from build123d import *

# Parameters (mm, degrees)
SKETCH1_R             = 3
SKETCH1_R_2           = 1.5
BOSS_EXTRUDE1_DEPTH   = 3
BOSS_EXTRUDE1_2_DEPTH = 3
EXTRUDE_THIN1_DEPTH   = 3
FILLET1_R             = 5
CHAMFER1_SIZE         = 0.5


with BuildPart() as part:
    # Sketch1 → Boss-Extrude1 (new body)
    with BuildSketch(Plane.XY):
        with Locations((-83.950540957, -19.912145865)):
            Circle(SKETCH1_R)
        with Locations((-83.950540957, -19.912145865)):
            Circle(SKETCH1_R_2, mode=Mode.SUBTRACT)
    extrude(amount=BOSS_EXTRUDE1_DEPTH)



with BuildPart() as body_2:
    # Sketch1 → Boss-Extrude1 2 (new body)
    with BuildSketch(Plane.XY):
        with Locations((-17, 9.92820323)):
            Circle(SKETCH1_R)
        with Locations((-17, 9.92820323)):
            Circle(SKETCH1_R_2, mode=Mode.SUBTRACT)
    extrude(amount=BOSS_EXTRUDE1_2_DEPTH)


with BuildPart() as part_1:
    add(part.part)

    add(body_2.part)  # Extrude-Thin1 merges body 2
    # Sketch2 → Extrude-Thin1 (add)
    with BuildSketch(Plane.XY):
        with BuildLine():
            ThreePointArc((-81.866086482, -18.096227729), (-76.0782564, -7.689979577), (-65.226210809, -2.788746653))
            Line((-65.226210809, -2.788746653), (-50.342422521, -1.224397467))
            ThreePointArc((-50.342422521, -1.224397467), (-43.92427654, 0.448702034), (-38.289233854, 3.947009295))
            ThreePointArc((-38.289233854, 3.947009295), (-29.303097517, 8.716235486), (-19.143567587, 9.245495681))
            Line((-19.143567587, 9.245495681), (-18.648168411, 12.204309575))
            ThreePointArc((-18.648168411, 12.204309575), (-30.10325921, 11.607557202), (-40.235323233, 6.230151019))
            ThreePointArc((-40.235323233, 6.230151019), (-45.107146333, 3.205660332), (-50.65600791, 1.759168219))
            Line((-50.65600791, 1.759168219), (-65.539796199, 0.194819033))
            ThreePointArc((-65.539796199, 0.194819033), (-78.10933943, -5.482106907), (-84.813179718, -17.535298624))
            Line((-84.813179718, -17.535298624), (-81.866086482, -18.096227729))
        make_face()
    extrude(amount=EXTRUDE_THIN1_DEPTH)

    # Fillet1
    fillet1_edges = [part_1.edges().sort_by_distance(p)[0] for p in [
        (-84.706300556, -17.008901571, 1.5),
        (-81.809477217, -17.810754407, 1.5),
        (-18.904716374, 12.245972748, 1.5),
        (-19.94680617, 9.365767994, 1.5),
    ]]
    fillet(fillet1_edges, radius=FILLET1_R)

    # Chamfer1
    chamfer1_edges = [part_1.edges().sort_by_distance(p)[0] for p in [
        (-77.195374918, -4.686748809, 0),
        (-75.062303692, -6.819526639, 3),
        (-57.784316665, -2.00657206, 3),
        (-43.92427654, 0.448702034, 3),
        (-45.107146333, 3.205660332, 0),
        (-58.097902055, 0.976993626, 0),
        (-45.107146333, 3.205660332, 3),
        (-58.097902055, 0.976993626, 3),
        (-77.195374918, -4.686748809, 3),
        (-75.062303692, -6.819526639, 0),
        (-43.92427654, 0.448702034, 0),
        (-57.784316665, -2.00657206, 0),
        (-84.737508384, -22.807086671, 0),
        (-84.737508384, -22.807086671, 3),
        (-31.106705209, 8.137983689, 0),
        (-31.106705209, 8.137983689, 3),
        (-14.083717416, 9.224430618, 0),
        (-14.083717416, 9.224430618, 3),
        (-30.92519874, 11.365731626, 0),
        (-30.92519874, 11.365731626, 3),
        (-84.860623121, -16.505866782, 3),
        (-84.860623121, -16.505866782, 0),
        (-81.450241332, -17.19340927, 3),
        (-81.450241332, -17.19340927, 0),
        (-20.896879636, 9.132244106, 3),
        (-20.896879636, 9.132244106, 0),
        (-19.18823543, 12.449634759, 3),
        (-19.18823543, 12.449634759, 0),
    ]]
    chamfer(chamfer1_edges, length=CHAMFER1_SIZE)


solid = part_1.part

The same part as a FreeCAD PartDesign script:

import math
import FreeCAD as App
import Part
import Sketcher

V = App.Vector
Q = App.Units.Quantity


def edges_at(feature, points):
    """Names of the edges that pass closest to the given points."""
    edges = feature.Shape.Edges
    near = lambda p: min(range(len(edges)), key=lambda i: edges[i].distToShape(Part.Vertex(*p))[0])
    return sorted({f"Edge{near(p) + 1}" for p in points})

doc = App.newDocument("Part")
body = doc.addObject("PartDesign::Body", "Body")

# Sketch on XY plane
sketch1 = body.newObject("Sketcher::SketchObject", "Sketch")
sketch1.AttachmentSupport = (doc.getObject("XY_Plane"), [""])
sketch1.MapMode = "FlatFace"
sketch1.addGeometry([
    Part.Circle(V(-84, -19.9, 0), V(0, 0, 1), 3),
    Part.Circle(V(-84, -19.9, 0), V(0, 0, 1), 1.5),
], False)
sketch1.addConstraint([
    Sketcher.Constraint("Coincident", 1, 3, 0, 3),
    Sketcher.Constraint("Diameter", 0, Q("6 mm")),
    Sketcher.Constraint("Diameter", 1, Q("3 mm")),
    Sketcher.Constraint("DistanceX", 0, 3, -1, 1, Q("83.950541 mm")),
    Sketcher.Constraint("DistanceY", 0, 3, -1, 1, Q("19.912146 mm")),
])
pad1 = body.newObject("PartDesign::Pad", "Pad")
pad1.Profile = sketch1
pad1.Length = 3
body2 = doc.addObject("PartDesign::Body", "Body001")

# Sketch on XY plane
sketch2 = body2.newObject("Sketcher::SketchObject", "Sketch001")
sketch2.AttachmentSupport = (doc.getObject("XY_Plane001"), [""])
sketch2.MapMode = "FlatFace"
sketch2.addGeometry([
    Part.Circle(V(-17, 9.9, 0), V(0, 0, 1), 3),
    Part.Circle(V(-17, 9.9, 0), V(0, 0, 1), 1.5),
], False)
sketch2.addConstraint([
    Sketcher.Constraint("Coincident", 1, 3, 0, 3),
    Sketcher.Constraint("Diameter", 0, Q("6 mm")),
    Sketcher.Constraint("Diameter", 1, Q("3 mm")),
    Sketcher.Constraint("DistanceX", 0, 3, -1, 1, Q("17 mm")),
    Sketcher.Constraint("DistanceY", -1, 1, 0, 3, Q("9.928203 mm")),
])
pad2 = body2.newObject("PartDesign::Pad", "Pad001")
pad2.Profile = sketch2
pad2.Length = 3
body.AllowCompound = True
doc.recompute()

boolean = body.newObject("PartDesign::Boolean", "Boolean")
boolean.Type = "Fuse"
boolean.addObjects([body2])

# Sketch on XY plane
sketch3 = body.newObject("Sketcher::SketchObject", "Sketch002")
sketch3.AttachmentSupport = (doc.getObject("XY_Plane"), [""])
sketch3.MapMode = "FlatFace"
sketch3.addGeometry([
    Part.ArcOfCircle(Part.Circle(V(-63.2, -21.6, 0), V(0, 0, 1), 19), math.radians(96), math.radians(169)),  # 0
    Part.LineSegment(V(-65.2, -2.8, 0), V(-50.3, -1.2, 0)),  # 1
    Part.ArcOfCircle(Part.Circle(V(-52.7, 20.8, 0), V(0, 0, 1), 22.1), math.radians(-84), math.radians(-50)),  # 2
    Part.ArcOfCircle(Part.Circle(V(-23, -14, 0), V(0, 0, 1), 23.5), math.radians(80), math.radians(130)),  # 3
    Part.LineSegment(V(-19.1, 9.2, 0), V(-18.6, 12.2, 0)),  # 4
    Part.ArcOfCircle(Part.Circle(V(-23, -14, 0), V(0, 0, 1), 26.5), math.radians(80), math.radians(130)),  # 5
    Part.ArcOfCircle(Part.Circle(V(-52.7, 20.8, 0), V(0, 0, 1), 19.1), math.radians(-84), math.radians(-50)),  # 6
    Part.LineSegment(V(-50.7, 1.8, 0), V(-65.5, 0.2, 0)),  # 7
    Part.ArcOfCircle(Part.Circle(V(-63.2, -21.6, 0), V(0, 0, 1), 22), math.radians(96), math.radians(169)),  # 8
    Part.LineSegment(V(-84.8, -17.5, 0), V(-81.9, -18.1, 0)),  # 9
], False)
sketch3.addConstraint([
    Sketcher.Constraint("Tangent", 0, 1, 1, 1),
    Sketcher.Constraint("Tangent", 1, 2, 2, 1),
    Sketcher.Constraint("Tangent", 2, 2, 3, 2),
    Sketcher.Constraint("Coincident", 3, 1, 4, 1),
    Sketcher.Constraint("Coincident", 4, 2, 5, 1),
    Sketcher.Constraint("Tangent", 5, 2, 6, 2),
    Sketcher.Constraint("Tangent", 6, 1, 7, 1),
    Sketcher.Constraint("Tangent", 7, 2, 8, 1),
    Sketcher.Constraint("Coincident", 8, 2, 9, 1),
    Sketcher.Constraint("Coincident", 9, 2, 0, 2),
    Sketcher.Constraint("Coincident", 5, 3, 3, 3),
    Sketcher.Constraint("Coincident", 6, 3, 2, 3),
    Sketcher.Constraint("Coincident", 8, 3, 0, 3),
    Sketcher.Constraint("Parallel", 1, 7),
    Sketcher.Constraint("Angle", 1, Q("6 deg")),
    Sketcher.Constraint("Distance", 4, Q("3 mm")),
    Sketcher.Constraint("Radius", 3, Q("23.525402 mm")),
    Sketcher.Constraint("Radius", 0, Q("18.955564 mm")),
    Sketcher.Constraint("Radius", 2, Q("22.149757 mm")),
    Sketcher.Constraint("DistanceY", 8, 2, -1, 1, Q("17.535299 mm")),
    Sketcher.Constraint("DistanceX", 3, 1, 4, 2, Q("0.495399 mm")),
    Sketcher.Constraint("DistanceY", 2, 2, 4, 2, Q("8.2573 mm")),
    Sketcher.Constraint("DistanceX", 1, 2, 5, 2, Q("10.107099 mm")),
    Sketcher.Constraint("DistanceY", 8, 2, 1, 2, Q("16.310901 mm")),
    Sketcher.Constraint("DistanceY", 0, 3, -1, 1, Q("21.64047 mm")),
    Sketcher.Constraint("DistanceX", 3, 3, -1, 1, Q("23.028389 mm")),
    Sketcher.Constraint("DistanceY", 9, 2, 8, 2, Q("0.560929 mm")),
])
pad3 = body.newObject("PartDesign::Pad", "Pad002")
pad3.Profile = sketch3
pad3.Length = 3
doc.recompute()

fillet = body.newObject("PartDesign::Fillet", "Fillet")
fillet.Base = (pad3, edges_at(pad3, [
    (-84.706, -17.009, 1.5),
    (-81.809, -17.811, 1.5),
    (-18.905, 12.246, 1.5),
    (-19.947, 9.366, 1.5),
]))
fillet.Radius = 5
doc.recompute()

chamfer = body.newObject("PartDesign::Chamfer", "Chamfer")
chamfer.Base = (fillet, edges_at(fillet, [
    (-77.195, -4.687, 0),
    (-75.062, -6.82, 3),
    (-57.784, -2.007, 3),
    (-43.924, 0.449, 3),
    (-45.107, 3.206, 0),
    (-58.098, 0.977, 0),
    (-45.107, 3.206, 3),
    (-58.098, 0.977, 3),
    (-77.195, -4.687, 3),
    (-75.062, -6.82, 0),
    (-43.924, 0.449, 0),
    (-57.784, -2.007, 0),
    (-84.738, -22.807, 0),
    (-84.738, -22.807, 3),
    (-31.107, 8.138, 0),
    (-31.107, 8.138, 3),
    (-14.084, 9.224, 0),
    (-14.084, 9.224, 3),
    (-30.925, 11.366, 0),
    (-30.925, 11.366, 3),
    (-84.861, -16.506, 3),
    (-84.861, -16.506, 0),
    (-81.45, -17.193, 3),
    (-81.45, -17.193, 0),
    (-20.897, 9.132, 3),
    (-20.897, 9.132, 0),
    (-19.188, 12.45, 3),
    (-19.188, 12.45, 0),
]))
chamfer.Size = 0.5

doc.recompute()
